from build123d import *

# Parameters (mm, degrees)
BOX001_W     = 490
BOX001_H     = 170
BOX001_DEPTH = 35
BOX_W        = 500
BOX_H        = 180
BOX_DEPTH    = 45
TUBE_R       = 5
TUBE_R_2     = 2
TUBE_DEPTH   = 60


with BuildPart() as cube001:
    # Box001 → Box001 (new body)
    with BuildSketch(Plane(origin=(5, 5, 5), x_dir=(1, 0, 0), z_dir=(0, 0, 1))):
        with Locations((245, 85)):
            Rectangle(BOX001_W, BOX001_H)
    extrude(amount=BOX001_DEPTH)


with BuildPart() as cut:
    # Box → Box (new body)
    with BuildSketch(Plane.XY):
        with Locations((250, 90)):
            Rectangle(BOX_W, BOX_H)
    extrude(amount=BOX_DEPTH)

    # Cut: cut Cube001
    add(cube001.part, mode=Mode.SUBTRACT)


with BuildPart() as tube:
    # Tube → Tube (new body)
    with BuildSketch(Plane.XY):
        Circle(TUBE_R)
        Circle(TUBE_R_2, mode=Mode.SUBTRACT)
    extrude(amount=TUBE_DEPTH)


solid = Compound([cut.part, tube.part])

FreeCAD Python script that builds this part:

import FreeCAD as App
import Part
import Sketcher

V = App.Vector


def add_polygon(sketch, points):
    """Adds a closed chain of lines whose ends are joined by coincident constraints."""
    first, n = sketch.GeometryCount, len(points)
    for a, b in zip(points, points[1:] + points[:1]):
        sketch.addGeometry(Part.LineSegment(App.Vector(*a, 0), App.Vector(*b, 0)), False)
    for i in range(n):
        sketch.addConstraint(Sketcher.Constraint("Coincident", first + i, 2, first + (i + 1) % n, 1))

doc = App.newDocument("Part")
body = doc.addObject("PartDesign::Body", "Body")

# Sketch on XY plane
sketch1 = body.newObject("Sketcher::SketchObject", "Sketch")
sketch1.AttachmentSupport = (doc.getObject("XY_Plane"), [""])
sketch1.MapMode = "FlatFace"
sketch1.AttachmentOffset = App.Placement(V(0, 0, 5), App.Rotation())
add_polygon(sketch1, [(5, 175), (5, 5), (495, 5), (495, 175)])  # lines 0-3
sketch1.addConstraint(Sketcher.Constraint("Vertical", 0))
sketch1.addConstraint(Sketcher.Constraint("Horizontal", 1))
sketch1.addConstraint(Sketcher.Constraint("Vertical", 2))
sketch1.addConstraint(Sketcher.Constraint("Horizontal", 3))
sketch1.addConstraint(Sketcher.Constraint("DistanceX", 1, 1, 1, 2, 490.0))
sketch1.addConstraint(Sketcher.Constraint("DistanceY", 0, 2, 0, 1, 170.0))
sketch1.addConstraint(Sketcher.Constraint("DistanceX", -1, 1, 0, 2, 5.0))
sketch1.addConstraint(Sketcher.Constraint("DistanceY", -1, 1, 0, 2, 5.0))
pad1 = body.newObject("PartDesign::Pad", "Pad")
pad1.Profile = sketch1
pad1.Length = 35
body2 = doc.addObject("PartDesign::Body", "Body001")

# Sketch on XY plane
sketch2 = body2.newObject("Sketcher::SketchObject", "Sketch001")
sketch2.AttachmentSupport = (doc.getObject("XY_Plane001"), [""])
sketch2.MapMode = "FlatFace"
add_polygon(sketch2, [(0, 180), (0, 0), (500, 0), (500, 180)])  # lines 0-3
sketch2.addConstraint(Sketcher.Constraint("Vertical", 0))
sketch2.addConstraint(Sketcher.Constraint("Horizontal", 1))
sketch2.addConstraint(Sketcher.Constraint("Vertical", 2))
sketch2.addConstraint(Sketcher.Constraint("Horizontal", 3))
sketch2.addConstraint(Sketcher.Constraint("Coincident", 0, 2, -1, 1))
sketch2.addConstraint(Sketcher.Constraint("DistanceX", 1, 1, 1, 2, 500.0))
sketch2.addConstraint(Sketcher.Constraint("DistanceY", 0, 2, 0, 1, 180.0))
pad2 = body2.newObject("PartDesign::Pad", "Pad001")
pad2.Profile = sketch2
pad2.Length = 45
doc.recompute()

boolean = body2.newObject("PartDesign::Boolean", "Boolean")
boolean.Type = "Cut"
boolean.addObjects([body])
body3 = doc.addObject("PartDesign::Body", "Body002")

# Sketch on XY plane
sketch3 = body3.newObject("Sketcher::SketchObject", "Sketch002")
sketch3.AttachmentSupport = (doc.getObject("XY_Plane002"), [""])
sketch3.MapMode = "FlatFace"
sketch3.addGeometry(Part.Circle(V(0, 0, 0), V(0, 0, 1), 5), False)
sketch3.addGeometry(Part.Circle(V(0, 0, 0), V(0, 0, 1), 2), False)
sketch3.addConstraint(Sketcher.Constraint("Coincident", 0, 3, -1, 1))
sketch3.addConstraint(Sketcher.Constraint("Coincident", 1, 3, -1, 1))
sketch3.addConstraint(Sketcher.Constraint("Diameter", 0, 10.0))
sketch3.addConstraint(Sketcher.Constraint("Diameter", 1, 4.0))
pad3 = body3.newObject("PartDesign::Pad", "Pad002")
pad3.Profile = sketch3
pad3.Length = 60

doc.recompute()
